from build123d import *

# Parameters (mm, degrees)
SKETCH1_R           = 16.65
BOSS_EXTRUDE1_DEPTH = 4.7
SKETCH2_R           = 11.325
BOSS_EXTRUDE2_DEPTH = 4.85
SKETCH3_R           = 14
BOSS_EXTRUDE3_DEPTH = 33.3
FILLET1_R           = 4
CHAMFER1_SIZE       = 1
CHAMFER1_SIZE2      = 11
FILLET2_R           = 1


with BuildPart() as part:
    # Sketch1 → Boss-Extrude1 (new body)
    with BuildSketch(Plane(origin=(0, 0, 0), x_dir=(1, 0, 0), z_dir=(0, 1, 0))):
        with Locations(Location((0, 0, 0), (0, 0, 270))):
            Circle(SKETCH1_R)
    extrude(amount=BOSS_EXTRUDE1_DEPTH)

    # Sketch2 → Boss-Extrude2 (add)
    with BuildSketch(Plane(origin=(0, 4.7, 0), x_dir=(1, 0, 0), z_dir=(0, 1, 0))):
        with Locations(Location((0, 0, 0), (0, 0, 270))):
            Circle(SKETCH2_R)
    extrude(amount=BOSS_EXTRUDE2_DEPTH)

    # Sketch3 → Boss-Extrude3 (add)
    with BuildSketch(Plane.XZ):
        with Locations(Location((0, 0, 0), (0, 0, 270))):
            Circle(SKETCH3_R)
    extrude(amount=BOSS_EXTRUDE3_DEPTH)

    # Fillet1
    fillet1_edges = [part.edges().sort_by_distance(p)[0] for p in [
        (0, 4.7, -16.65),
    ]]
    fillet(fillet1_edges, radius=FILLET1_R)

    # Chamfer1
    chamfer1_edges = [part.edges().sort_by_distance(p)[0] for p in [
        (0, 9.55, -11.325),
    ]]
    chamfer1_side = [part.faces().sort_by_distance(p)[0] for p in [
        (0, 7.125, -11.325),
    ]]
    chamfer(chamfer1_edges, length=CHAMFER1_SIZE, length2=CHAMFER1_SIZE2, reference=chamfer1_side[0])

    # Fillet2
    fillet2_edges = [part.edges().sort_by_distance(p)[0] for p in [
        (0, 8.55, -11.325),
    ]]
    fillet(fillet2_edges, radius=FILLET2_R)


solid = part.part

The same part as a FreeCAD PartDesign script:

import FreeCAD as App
import Part
import Sketcher


def edges_at(feature, points):
    """Names of the edges that pass closest to the given points."""
    edges = feature.Shape.Edges
    near = lambda p: min(range(len(edges)), key=lambda i: edges[i].distToShape(Part.Vertex(*p))[0])
    return sorted({f"Edge{near(p) + 1}" for p in points})

doc = App.newDocument("Part")
body = doc.addObject("PartDesign::Body", "Body")

sketch1 = body.newObject("Sketcher::SketchObject", "Sketch")
sketch1.AttachmentSupport = (doc.getObject("XZ_Plane"), [""])
sketch1.MapMode = "FlatFace"
sketch1.addGeometry(Part.Circle(App.Vector(0, 0, 0), App.Vector(0, 0, 1), 17), False)
sketch1.addConstraint(Sketcher.Constraint("Coincident", 0, 3, -1, 1))
sketch1.addConstraint(Sketcher.Constraint("Diameter", 0, 33.3))
pad1 = body.newObject("PartDesign::Pad", "Pad")
pad1.Profile = sketch1
pad1.Length = 4.7
pad1.Reversed = True

sketch2 = body.newObject("Sketcher::SketchObject", "Sketch001")
sketch2.AttachmentSupport = (doc.getObject("XZ_Plane"), [""])
sketch2.MapMode = "FlatFace"
sketch2.AttachmentOffset = App.Placement(App.Vector(0, 0, -4.7), App.Rotation())
sketch2.addGeometry(Part.Circle(App.Vector(0, 0, 0), App.Vector(0, 0, 1), 11), False)
sketch2.addConstraint(Sketcher.Constraint("Coincident", 0, 3, -1, 1))
sketch2.addConstraint(Sketcher.Constraint("Diameter", 0, 22.65))
pad2 = body.newObject("PartDesign::Pad", "Pad001")
pad2.Profile = sketch2
pad2.Length = 4.85
pad2.Reversed = True

sketch3 = body.newObject("Sketcher::SketchObject", "Sketch002")
sketch3.AttachmentSupport = (doc.getObject("XZ_Plane"), [""])
sketch3.MapMode = "FlatFace"
sketch3.addGeometry(Part.Circle(App.Vector(0, 0, 0), App.Vector(0, 0, 1), 14), False)
sketch3.addConstraint(Sketcher.Constraint("Coincident", 0, 3, -1, 1))
sketch3.addConstraint(Sketcher.Constraint("Diameter", 0, 28.0))
pad3 = body.newObject("PartDesign::Pad", "Pad002")
pad3.Profile = sketch3
pad3.Length = 33.3
doc.recompute()

fillet = body.newObject("PartDesign::Fillet", "Fillet")
fillet.Base = (pad3, edges_at(pad3, [(0, 4.7, -16.65)]))
fillet.Radius = 4
doc.recompute()

chamfer = body.newObject("PartDesign::Chamfer", "Chamfer")
chamfer.Base = (fillet, edges_at(fillet, [(0, 9.55, -11.325)]))
chamfer.ChamferType = "Two distances"
chamfer.Size = 1
chamfer.Size2 = 11
doc.recompute()

fillet2 = body.newObject("PartDesign::Fillet", "Fillet001")
fillet2.Base = (chamfer, edges_at(chamfer, [(0, 8.55, -11.325)]))
fillet2.Radius = 1

doc.recompute()
